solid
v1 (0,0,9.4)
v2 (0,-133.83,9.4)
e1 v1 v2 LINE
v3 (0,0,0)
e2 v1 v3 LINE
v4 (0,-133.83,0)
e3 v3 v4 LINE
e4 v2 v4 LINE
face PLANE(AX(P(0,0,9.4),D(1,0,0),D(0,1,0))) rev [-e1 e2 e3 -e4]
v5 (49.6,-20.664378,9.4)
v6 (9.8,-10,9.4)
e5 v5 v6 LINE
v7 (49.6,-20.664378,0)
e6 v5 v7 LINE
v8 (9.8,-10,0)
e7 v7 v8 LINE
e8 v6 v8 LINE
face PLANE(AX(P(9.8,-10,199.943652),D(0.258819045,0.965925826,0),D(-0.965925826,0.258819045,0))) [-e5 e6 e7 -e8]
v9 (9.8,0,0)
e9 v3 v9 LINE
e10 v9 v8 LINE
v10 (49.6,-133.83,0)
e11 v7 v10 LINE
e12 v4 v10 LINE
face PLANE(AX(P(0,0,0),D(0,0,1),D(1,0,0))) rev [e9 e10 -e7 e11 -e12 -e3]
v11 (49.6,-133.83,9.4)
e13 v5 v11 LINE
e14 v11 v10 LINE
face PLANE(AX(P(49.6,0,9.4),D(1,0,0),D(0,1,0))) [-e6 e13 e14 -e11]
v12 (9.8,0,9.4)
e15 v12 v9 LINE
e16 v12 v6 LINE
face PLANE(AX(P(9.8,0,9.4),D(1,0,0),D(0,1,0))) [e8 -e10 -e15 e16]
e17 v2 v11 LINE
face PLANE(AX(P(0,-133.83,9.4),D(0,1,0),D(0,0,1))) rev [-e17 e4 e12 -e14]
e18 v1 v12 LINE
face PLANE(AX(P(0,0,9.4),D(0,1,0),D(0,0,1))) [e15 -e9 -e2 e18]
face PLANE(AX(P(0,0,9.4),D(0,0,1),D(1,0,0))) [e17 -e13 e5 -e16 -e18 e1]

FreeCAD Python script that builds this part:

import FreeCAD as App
import Part
import Sketcher
Q = App.Units.Quantity


def add_polygon(sketch, points):
    """Adds a closed chain of lines whose ends are joined by coincident constraints."""
    first, n = sketch.GeometryCount, len(points)
    for a, b in zip(points, points[1:] + points[:1]):
        sketch.addGeometry(Part.LineSegment(App.Vector(*a, 0), App.Vector(*b, 0)), False)
    for i in range(n):
        sketch.addConstraint(Sketcher.Constraint("Coincident", first + i, 2, first + (i + 1) % n, 1))

doc = App.newDocument("Part")
body = doc.addObject("PartDesign::Body", "Body")

sketch1 = doc.addObject("Sketcher::SketchObject", "Sketch")
body.addObject(sketch1)
sketch1.AttachmentSupport = (doc.XY_Plane, [""])
sketch1.MapMode = "FlatFace"
add_polygon(sketch1, [(10, 0), (0, 0), (0, -134), (50, -134), (50, 0), (40, 0), (40, -10), (10, -10)])
sketch1.addConstraint(Sketcher.Constraint("Horizontal", 0))
sketch1.addConstraint(Sketcher.Constraint("Vertical", 1))
sketch1.addConstraint(Sketcher.Constraint("Horizontal", 2))
sketch1.addConstraint(Sketcher.Constraint("Vertical", 3))
sketch1.addConstraint(Sketcher.Constraint("Horizontal", 4))
sketch1.addConstraint(Sketcher.Constraint("Vertical", 5))
sketch1.addConstraint(Sketcher.Constraint("Horizontal", 6))
sketch1.addConstraint(Sketcher.Constraint("Vertical", 7))
sketch1.addConstraint(Sketcher.Constraint("Coincident", 0, 2, -1, 1))
sketch1.addConstraint(Sketcher.Constraint("PointOnObject", 3, 2, -1))
sketch1.addConstraint(Sketcher.Constraint("Equal", 0, 4))
sketch1.addConstraint(Sketcher.Constraint("DistanceX", 6, 2, 6, 1, Q("30 mm")))
sketch1.addConstraint(Sketcher.Constraint("DistanceY", 5, 2, 5, 1, Q("10 mm")))
sketch1.addConstraint(Sketcher.Constraint("DistanceX", 0, 2, 0, 1, Q("9.8 mm")))
sketch1.addConstraint(Sketcher.Constraint("DistanceY", 1, 2, 1, 1, Q("133.83 mm")))
pad1 = doc.addObject("PartDesign::Pad", "Pad")
body.addObject(pad1)
pad1.Profile = sketch1
pad1.Length = 9.4

sketch2 = doc.addObject("Sketcher::SketchObject", "Sketch001")
body.addObject(sketch2)
sketch2.AttachmentSupport = (doc.XY_Plane, [""])
sketch2.MapMode = "FlatFace"
sketch2.AttachmentOffset = App.Placement(App.Vector(0, 0, 9.4), App.Rotation())
add_polygon(sketch2, [(40, -10), (10, -10), (50, -21), (50, 0), (40, 0)])
sketch2.addConstraint(Sketcher.Constraint("Horizontal", 0))
sketch2.addConstraint(Sketcher.Constraint("Vertical", 2))
sketch2.addConstraint(Sketcher.Constraint("Horizontal", 3))
sketch2.addConstraint(Sketcher.Constraint("Vertical", 4))
sketch2.addConstraint(Sketcher.Constraint("PointOnObject", 2, 2, -1))
sketch2.addConstraint(Sketcher.Constraint("DistanceX", 0, 2, 0, 1, Q("30 mm")))
sketch2.addConstraint(Sketcher.Constraint("DistanceY", 4, 2, 4, 1, Q("10 mm")))
sketch2.addConstraint(Sketcher.Constraint("Angle", 1, Q("-15 deg")))
sketch2.addConstraint(Sketcher.Constraint("DistanceX", 3, 2, 3, 1, Q("9.8 mm")))
sketch2.addConstraint(Sketcher.Constraint("DistanceX", -1, 1, 0, 2, Q("9.8 mm")))
pocket1 = doc.addObject("PartDesign::Pocket", "Pocket")
body.addObject(pocket1)
pocket1.Profile = sketch2
pocket1.Type = "ThroughAll"
pocket1.Midplane = True

doc.recompute()
